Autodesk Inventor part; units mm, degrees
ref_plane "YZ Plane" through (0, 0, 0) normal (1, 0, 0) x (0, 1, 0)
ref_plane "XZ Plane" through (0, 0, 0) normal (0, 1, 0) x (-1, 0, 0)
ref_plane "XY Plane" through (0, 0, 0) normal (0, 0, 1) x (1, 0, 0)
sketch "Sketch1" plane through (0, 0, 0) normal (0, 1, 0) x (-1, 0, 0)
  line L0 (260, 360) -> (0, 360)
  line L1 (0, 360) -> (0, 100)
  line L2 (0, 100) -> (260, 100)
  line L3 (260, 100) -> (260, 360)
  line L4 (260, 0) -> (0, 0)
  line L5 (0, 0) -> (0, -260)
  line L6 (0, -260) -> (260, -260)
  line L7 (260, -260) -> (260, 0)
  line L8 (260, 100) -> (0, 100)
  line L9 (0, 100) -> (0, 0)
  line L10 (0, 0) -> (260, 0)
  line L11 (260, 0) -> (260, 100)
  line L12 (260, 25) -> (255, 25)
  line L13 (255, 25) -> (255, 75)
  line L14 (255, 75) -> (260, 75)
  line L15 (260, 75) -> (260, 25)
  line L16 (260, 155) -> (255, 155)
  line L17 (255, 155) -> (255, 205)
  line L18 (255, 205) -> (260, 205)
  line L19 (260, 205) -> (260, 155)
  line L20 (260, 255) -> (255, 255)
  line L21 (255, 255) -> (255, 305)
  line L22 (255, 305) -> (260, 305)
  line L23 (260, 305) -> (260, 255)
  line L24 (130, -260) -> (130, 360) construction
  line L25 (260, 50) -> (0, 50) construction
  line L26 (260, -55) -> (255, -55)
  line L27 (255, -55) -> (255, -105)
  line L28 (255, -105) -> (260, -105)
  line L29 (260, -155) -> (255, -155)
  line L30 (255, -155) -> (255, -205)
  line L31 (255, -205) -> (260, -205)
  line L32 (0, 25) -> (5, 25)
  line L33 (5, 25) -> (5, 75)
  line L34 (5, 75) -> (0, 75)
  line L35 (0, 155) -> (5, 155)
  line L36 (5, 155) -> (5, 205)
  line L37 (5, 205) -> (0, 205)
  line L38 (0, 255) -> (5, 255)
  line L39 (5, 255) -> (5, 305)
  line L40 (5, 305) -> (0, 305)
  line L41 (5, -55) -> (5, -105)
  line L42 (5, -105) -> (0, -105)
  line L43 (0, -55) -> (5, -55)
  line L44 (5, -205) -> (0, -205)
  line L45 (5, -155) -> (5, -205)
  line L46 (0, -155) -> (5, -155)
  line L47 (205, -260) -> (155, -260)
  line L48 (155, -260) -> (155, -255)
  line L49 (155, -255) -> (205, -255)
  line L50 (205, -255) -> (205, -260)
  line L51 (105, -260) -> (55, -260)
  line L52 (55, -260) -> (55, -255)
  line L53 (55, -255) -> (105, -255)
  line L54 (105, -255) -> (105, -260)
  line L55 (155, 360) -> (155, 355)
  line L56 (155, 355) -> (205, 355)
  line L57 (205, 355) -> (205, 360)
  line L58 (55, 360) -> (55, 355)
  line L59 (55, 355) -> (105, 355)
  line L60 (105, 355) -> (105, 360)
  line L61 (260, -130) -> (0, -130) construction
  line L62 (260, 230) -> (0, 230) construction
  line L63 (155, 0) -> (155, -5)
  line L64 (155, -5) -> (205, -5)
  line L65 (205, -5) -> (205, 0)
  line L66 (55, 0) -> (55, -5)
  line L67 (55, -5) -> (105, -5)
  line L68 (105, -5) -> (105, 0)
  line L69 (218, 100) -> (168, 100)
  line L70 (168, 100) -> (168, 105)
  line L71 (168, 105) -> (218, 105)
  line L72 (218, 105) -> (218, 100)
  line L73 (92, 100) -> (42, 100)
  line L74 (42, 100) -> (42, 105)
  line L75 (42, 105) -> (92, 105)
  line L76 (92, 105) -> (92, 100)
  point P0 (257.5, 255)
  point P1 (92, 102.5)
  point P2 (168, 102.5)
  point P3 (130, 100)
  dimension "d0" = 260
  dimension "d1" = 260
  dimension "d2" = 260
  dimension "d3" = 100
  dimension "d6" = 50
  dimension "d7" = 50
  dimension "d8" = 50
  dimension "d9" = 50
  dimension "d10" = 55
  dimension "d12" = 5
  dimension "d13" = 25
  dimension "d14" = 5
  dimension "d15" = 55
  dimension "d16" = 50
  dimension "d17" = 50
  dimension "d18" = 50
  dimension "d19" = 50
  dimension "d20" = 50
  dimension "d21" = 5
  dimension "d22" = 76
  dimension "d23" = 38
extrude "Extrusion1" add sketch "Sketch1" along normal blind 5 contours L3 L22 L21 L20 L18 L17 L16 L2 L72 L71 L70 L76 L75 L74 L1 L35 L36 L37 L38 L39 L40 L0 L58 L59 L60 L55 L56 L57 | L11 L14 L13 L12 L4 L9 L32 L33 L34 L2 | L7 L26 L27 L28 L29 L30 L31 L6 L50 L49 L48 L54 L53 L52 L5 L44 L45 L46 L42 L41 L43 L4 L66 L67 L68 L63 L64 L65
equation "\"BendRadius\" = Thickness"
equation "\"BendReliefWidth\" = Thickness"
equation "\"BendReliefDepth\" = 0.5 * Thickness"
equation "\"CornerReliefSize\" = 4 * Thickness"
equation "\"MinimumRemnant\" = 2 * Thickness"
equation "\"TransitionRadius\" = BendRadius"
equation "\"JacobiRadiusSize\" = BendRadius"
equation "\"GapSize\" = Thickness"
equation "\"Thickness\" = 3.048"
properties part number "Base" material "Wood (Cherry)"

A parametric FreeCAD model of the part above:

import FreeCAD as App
import Part
import Sketcher

V = App.Vector


def add_polygon(sketch, points):
    """Adds a closed chain of lines whose ends are joined by coincident constraints."""
    first, n = sketch.GeometryCount, len(points)
    for a, b in zip(points, points[1:] + points[:1]):
        sketch.addGeometry(Part.LineSegment(App.Vector(*a, 0), App.Vector(*b, 0)), False)
    for i in range(n):
        sketch.addConstraint(Sketcher.Constraint("Coincident", first + i, 2, first + (i + 1) % n, 1))

doc = App.newDocument("Part")
body = doc.addObject("PartDesign::Body", "Body")

# Sketch on XZ plane
sketch1 = doc.addObject("Sketcher::SketchObject", "Sketch")
body.addObject(sketch1)
sketch1.AttachmentSupport = (doc.XZ_Plane, [""])
sketch1.MapMode = "FlatFace"
add_polygon(sketch1, [(-260, 305), (-260, 360), (-205, 360), (-205, 355), (-155, 355), (-155, 360), (-105, 360), (-105, 355), (-55, 355), (-55, 360), (0, 360), (0, 305), (-5, 305), (-5, 255), (0, 255), (0, 205), (-5, 205), (-5, 155), (0, 155), (0, 75), (-5, 75), (-5, 25), (0, 25), (0, -55), (-5, -55), (-5, -105), (0, -105), (0, -155), (-5, -155), (-5, -205), (0, -205), (0, -260), (-55, -260), (-55, -255), (-105, -255), (-105, -260), (-155, -260), (-155, -255), (-205, -255), (-205, -260), (-260, -260), (-260, -205), (-255, -205), (-255, -155), (-260, -155), (-260, -105), (-255, -105), (-255, -55), (-260, -55), (-260, 25), (-255, 25), (-255, 75), (-260, 75), (-260, 155), (-255, 155), (-255, 205), (-260, 205), (-260, 255), (-255, 255), (-255, 305)])  # lines 0-59
add_polygon(sketch1, [(-218, 105), (-218, 100), (-168, 100), (-168, 105)])  # lines 60-63
add_polygon(sketch1, [(-92, 105), (-92, 100), (-42, 100), (-42, 105)])  # lines 64-67
add_polygon(sketch1, [(-155, 0), (-205, 0), (-205, -5), (-155, -5)])  # lines 68-71
add_polygon(sketch1, [(-55, 0), (-105, 0), (-105, -5), (-55, -5)])  # lines 72-75
sketch1.addConstraint(Sketcher.Constraint("Vertical", 0))
sketch1.addConstraint(Sketcher.Constraint("Horizontal", 1))
sketch1.addConstraint(Sketcher.Constraint("Vertical", 2))
sketch1.addConstraint(Sketcher.Constraint("Horizontal", 3))
sketch1.addConstraint(Sketcher.Constraint("Vertical", 4))
sketch1.addConstraint(Sketcher.Constraint("Horizontal", 5))
sketch1.addConstraint(Sketcher.Constraint("Vertical", 6))
sketch1.addConstraint(Sketcher.Constraint("Horizontal", 7))
sketch1.addConstraint(Sketcher.Constraint("Vertical", 8))
sketch1.addConstraint(Sketcher.Constraint("Horizontal", 9))
sketch1.addConstraint(Sketcher.Constraint("Vertical", 10))
sketch1.addConstraint(Sketcher.Constraint("Horizontal", 11))
sketch1.addConstraint(Sketcher.Constraint("Vertical", 12))
sketch1.addConstraint(Sketcher.Constraint("Horizontal", 13))
sketch1.addConstraint(Sketcher.Constraint("Vertical", 14))
sketch1.addConstraint(Sketcher.Constraint("Horizontal", 15))
sketch1.addConstraint(Sketcher.Constraint("Vertical", 16))
sketch1.addConstraint(Sketcher.Constraint("Horizontal", 17))
sketch1.addConstraint(Sketcher.Constraint("Vertical", 18))
sketch1.addConstraint(Sketcher.Constraint("Horizontal", 19))
sketch1.addConstraint(Sketcher.Constraint("Vertical", 20))
sketch1.addConstraint(Sketcher.Constraint("Horizontal", 21))
sketch1.addConstraint(Sketcher.Constraint("Vertical", 22))
sketch1.addConstraint(Sketcher.Constraint("Horizontal", 23))
sketch1.addConstraint(Sketcher.Constraint("Vertical", 24))
sketch1.addConstraint(Sketcher.Constraint("Horizontal", 25))
sketch1.addConstraint(Sketcher.Constraint("Vertical", 26))
sketch1.addConstraint(Sketcher.Constraint("Horizontal", 27))
sketch1.addConstraint(Sketcher.Constraint("Vertical", 28))
sketch1.addConstraint(Sketcher.Constraint("Horizontal", 29))
sketch1.addConstraint(Sketcher.Constraint("Vertical", 30))
sketch1.addConstraint(Sketcher.Constraint("Horizontal", 31))
sketch1.addConstraint(Sketcher.Constraint("Vertical", 32))
sketch1.addConstraint(Sketcher.Constraint("Horizontal", 33))
sketch1.addConstraint(Sketcher.Constraint("Vertical", 34))
sketch1.addConstraint(Sketcher.Constraint("Horizontal", 35))
sketch1.addConstraint(Sketcher.Constraint("Vertical", 36))
sketch1.addConstraint(Sketcher.Constraint("Horizontal", 37))
sketch1.addConstraint(Sketcher.Constraint("Vertical", 38))
sketch1.addConstraint(Sketcher.Constraint("Horizontal", 39))
sketch1.addConstraint(Sketcher.Constraint("Vertical", 40))
sketch1.addConstraint(Sketcher.Constraint("Horizontal", 41))
sketch1.addConstraint(Sketcher.Constraint("Vertical", 42))
sketch1.addConstraint(Sketcher.Constraint("Horizontal", 43))
sketch1.addConstraint(Sketcher.Constraint("Vertical", 44))
sketch1.addConstraint(Sketcher.Constraint("Horizontal", 45))
sketch1.addConstraint(Sketcher.Constraint("Vertical", 46))
sketch1.addConstraint(Sketcher.Constraint("Horizontal", 47))
sketch1.addConstraint(Sketcher.Constraint("Vertical", 48))
sketch1.addConstraint(Sketcher.Constraint("Horizontal", 49))
sketch1.addConstraint(Sketcher.Constraint("Vertical", 50))
sketch1.addConstraint(Sketcher.Constraint("Horizontal", 51))
sketch1.addConstraint(Sketcher.Constraint("Vertical", 52))
sketch1.addConstraint(Sketcher.Constraint("Horizontal", 53))
sketch1.addConstraint(Sketcher.Constraint("Vertical", 54))
sketch1.addConstraint(Sketcher.Constraint("Horizontal", 55))
sketch1.addConstraint(Sketcher.Constraint("Vertical", 56))
sketch1.addConstraint(Sketcher.Constraint("Horizontal", 57))
sketch1.addConstraint(Sketcher.Constraint("Vertical", 58))
sketch1.addConstraint(Sketcher.Constraint("Horizontal", 59))
sketch1.addConstraint(Sketcher.Constraint("Vertical", 60))
sketch1.addConstraint(Sketcher.Constraint("Horizontal", 61))
sketch1.addConstraint(Sketcher.Constraint("Vertical", 62))
sketch1.addConstraint(Sketcher.Constraint("Horizontal", 63))
sketch1.addConstraint(Sketcher.Constraint("Vertical", 64))
sketch1.addConstraint(Sketcher.Constraint("Horizontal", 65))
sketch1.addConstraint(Sketcher.Constraint("Vertical", 66))
sketch1.addConstraint(Sketcher.Constraint("Horizontal", 67))
sketch1.addConstraint(Sketcher.Constraint("Horizontal", 68))
sketch1.addConstraint(Sketcher.Constraint("Vertical", 69))
sketch1.addConstraint(Sketcher.Constraint("Horizontal", 70))
sketch1.addConstraint(Sketcher.Constraint("Vertical", 71))
sketch1.addConstraint(Sketcher.Constraint("Horizontal", 72))
sketch1.addConstraint(Sketcher.Constraint("Vertical", 73))
sketch1.addConstraint(Sketcher.Constraint("Horizontal", 74))
sketch1.addConstraint(Sketcher.Constraint("Vertical", 75))
sketch1.addConstraint(Sketcher.Constraint("Symmetric", 17, 2, 26, 2, -1, 1))
sketch1.addConstraint(Sketcher.Constraint("Symmetric", 14, 2, 29, 2, -1, 1))
sketch1.addConstraint(Sketcher.Constraint("Symmetric", 43, 2, 52, 2, -1))
sketch1.addConstraint(Sketcher.Constraint("Symmetric", 41, 2, 54, 2, -1))
sketch1.addConstraint(Sketcher.Constraint("PointOnObject", 9, 2, -2))
sketch1.addConstraint(Sketcher.Constraint("PointOnObject", 13, 2, -2))
sketch1.addConstraint(Sketcher.Constraint("PointOnObject", 17, 2, -2))
sketch1.addConstraint(Sketcher.Constraint("PointOnObject", 21, 2, -2))
sketch1.addConstraint(Sketcher.Constraint("PointOnObject", 68, 2, -1))
sketch1.addConstraint(Sketcher.Constraint("PointOnObject", 72, 2, -1))
sketch1.addConstraint(Sketcher.Constraint("Horizontal", 1, 2, 4, 2))
sketch1.addConstraint(Sketcher.Constraint("Horizontal", 3, 2, 6, 2))
sketch1.addConstraint(Sketcher.Constraint("Horizontal", 5, 2, 8, 2))
sketch1.addConstraint(Sketcher.Constraint("Horizontal", 31, 2, 34, 2))
sketch1.addConstraint(Sketcher.Constraint("Horizontal", 33, 2, 36, 2))
sketch1.addConstraint(Sketcher.Constraint("Horizontal", 35, 2, 38, 2))
sketch1.addConstraint(Sketcher.Constraint("Horizontal", 29, 2, 40, 2))
sketch1.addConstraint(Sketcher.Constraint("Horizontal", 27, 2, 42, 2))
sketch1.addConstraint(Sketcher.Constraint("Horizontal", 25, 2, 44, 2))
sketch1.addConstraint(Sketcher.Constraint("Horizontal", 23, 2, 46, 2))
sketch1.addConstraint(Sketcher.Constraint("Horizontal", 21, 2, 48, 2))
sketch1.addConstraint(Sketcher.Constraint("Horizontal", 19, 2, 50, 2))
sketch1.addConstraint(Sketcher.Constraint("Horizontal", 13, 2, 56, 2))
sketch1.addConstraint(Sketcher.Constraint("Horizontal", 11, 2, 58, 2))
sketch1.addConstraint(Sketcher.Constraint("Horizontal", 61, 2, 64, 2))
sketch1.addConstraint(Sketcher.Constraint("Horizontal", 63, 2, 66, 2))
sketch1.addConstraint(Sketcher.Constraint("Horizontal", 70, 2, 73, 2))
sketch1.addConstraint(Sketcher.Constraint("Vertical", 12, 2, 15, 2))
sketch1.addConstraint(Sketcher.Constraint("Vertical", 16, 2, 19, 2))
sketch1.addConstraint(Sketcher.Constraint("Vertical", 20, 2, 23, 2))
sketch1.addConstraint(Sketcher.Constraint("Vertical", 24, 2, 27, 2))
sketch1.addConstraint(Sketcher.Constraint("Vertical", 8, 2, 31, 2))
sketch1.addConstraint(Sketcher.Constraint("Vertical", 6, 2, 33, 2))
sketch1.addConstraint(Sketcher.Constraint("Vertical", 4, 2, 35, 2))
sketch1.addConstraint(Sketcher.Constraint("Vertical", 2, 2, 37, 2))
sketch1.addConstraint(Sketcher.Constraint("Vertical", 0, 2, 39, 2))
sketch1.addConstraint(Sketcher.Constraint("Vertical", 40, 2, 43, 2))
sketch1.addConstraint(Sketcher.Constraint("Vertical", 42, 2, 45, 2))
sketch1.addConstraint(Sketcher.Constraint("Vertical", 44, 2, 47, 2))
sketch1.addConstraint(Sketcher.Constraint("Vertical", 46, 2, 49, 2))
sketch1.addConstraint(Sketcher.Constraint("Vertical", 52, 2, 55, 2))
sketch1.addConstraint(Sketcher.Constraint("Vertical", 54, 2, 57, 2))
sketch1.addConstraint(Sketcher.Constraint("Vertical", 38, 2, 68, 2))
sketch1.addConstraint(Sketcher.Constraint("Vertical", 36, 2, 70, 2))
sketch1.addConstraint(Sketcher.Constraint("Vertical", 34, 2, 72, 2))
sketch1.addConstraint(Sketcher.Constraint("Vertical", 32, 2, 74, 2))
sketch1.addConstraint(Sketcher.Constraint("Equal", 3, 5))
sketch1.addConstraint(Sketcher.Constraint("Equal", 5, 7))
sketch1.addConstraint(Sketcher.Constraint("Equal", 1, 9))
sketch1.addConstraint(Sketcher.Constraint("Equal", 29, 41))
sketch1.addConstraint(Sketcher.Constraint("Equal", 37, 61))
sketch1.addConstraint(Sketcher.Constraint("Equal", 63, 65))
sketch1.addConstraint(Sketcher.Constraint("Equal", 39, 0))
sketch1.addConstraint(Sketcher.Constraint("Equal", 59, 2))
sketch1.addConstraint(Sketcher.Constraint("Equal", 74, 12))
sketch1.addConstraint(Sketcher.Constraint("Equal", 12, 14))
sketch1.addConstraint(Sketcher.Constraint("Equal", 14, 16))
sketch1.addConstraint(Sketcher.Constraint("Equal", 16, 20))
sketch1.addConstraint(Sketcher.Constraint("Equal", 18, 22))
sketch1.addConstraint(Sketcher.Constraint("Equal", 20, 24))
sketch1.addConstraint(Sketcher.Constraint("Equal", 24, 26))
sketch1.addConstraint(Sketcher.Constraint("Equal", 10, 30))
sketch1.addConstraint(Sketcher.Constraint("Equal", 8, 32))
sketch1.addConstraint(Sketcher.Constraint("Equal", 38, 60))
sketch1.addConstraint(Sketcher.Constraint("Equal", 66, 69))
sketch1.addConstraint(Sketcher.Constraint("DistanceX", 1, 1, 1, 2, 55.0))
sketch1.addConstraint(Sketcher.Constraint("DistanceX", 3, 1, 3, 2, 50.0))
sketch1.addConstraint(Sketcher.Constraint("DistanceX", 11, 2, 11, 1, 5.0))
sketch1.addConstraint(Sketcher.Constraint("DistanceY", 22, 2, -1, 1, 55.0))
sketch1.addConstraint(Sketcher.Constraint("DistanceY", -1, 1, 60, 2, 100.0))
sketch1.addConstraint(Sketcher.Constraint("DistanceX", 60, 2, -1, 1, 218.0))
sketch1.addConstraint(Sketcher.Constraint("DistanceX", 64, 2, -1, 1, 92.0))
pad1 = doc.addObject("PartDesign::Pad", "Pad")
body.addObject(pad1)
pad1.Profile = sketch1
pad1.Length = 5
pad1.Reversed = True

doc.recompute()
